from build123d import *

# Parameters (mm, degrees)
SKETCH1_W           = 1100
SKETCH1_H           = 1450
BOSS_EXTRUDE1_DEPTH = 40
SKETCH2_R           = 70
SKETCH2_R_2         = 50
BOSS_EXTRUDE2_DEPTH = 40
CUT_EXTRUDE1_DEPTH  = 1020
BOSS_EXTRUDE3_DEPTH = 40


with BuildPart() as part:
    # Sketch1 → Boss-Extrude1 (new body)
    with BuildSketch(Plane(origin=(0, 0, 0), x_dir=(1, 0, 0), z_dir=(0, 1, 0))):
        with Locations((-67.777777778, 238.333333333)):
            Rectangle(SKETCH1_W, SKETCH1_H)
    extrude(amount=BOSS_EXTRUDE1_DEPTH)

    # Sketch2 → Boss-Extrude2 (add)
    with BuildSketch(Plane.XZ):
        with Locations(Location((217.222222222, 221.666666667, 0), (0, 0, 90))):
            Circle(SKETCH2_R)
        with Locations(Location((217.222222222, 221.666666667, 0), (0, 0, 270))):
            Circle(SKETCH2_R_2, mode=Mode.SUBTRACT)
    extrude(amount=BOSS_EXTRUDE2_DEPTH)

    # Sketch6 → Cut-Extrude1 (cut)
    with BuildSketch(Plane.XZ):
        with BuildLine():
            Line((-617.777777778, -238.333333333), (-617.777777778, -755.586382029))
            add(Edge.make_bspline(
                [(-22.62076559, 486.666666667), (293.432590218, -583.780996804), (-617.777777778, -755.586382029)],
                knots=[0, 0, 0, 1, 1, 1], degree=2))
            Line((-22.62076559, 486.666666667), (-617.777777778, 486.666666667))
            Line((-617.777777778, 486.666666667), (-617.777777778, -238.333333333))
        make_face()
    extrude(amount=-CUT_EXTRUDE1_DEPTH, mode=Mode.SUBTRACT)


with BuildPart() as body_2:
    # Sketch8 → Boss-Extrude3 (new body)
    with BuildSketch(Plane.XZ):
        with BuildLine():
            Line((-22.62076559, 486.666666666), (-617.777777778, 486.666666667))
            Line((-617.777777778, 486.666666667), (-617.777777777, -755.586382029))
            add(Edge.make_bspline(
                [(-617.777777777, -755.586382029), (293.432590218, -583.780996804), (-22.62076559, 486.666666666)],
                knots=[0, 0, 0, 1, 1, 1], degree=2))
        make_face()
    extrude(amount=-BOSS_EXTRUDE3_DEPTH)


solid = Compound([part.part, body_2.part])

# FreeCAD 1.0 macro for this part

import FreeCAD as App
import Part
import Sketcher
from FreeCAD import Vector


def add_polygon(sketch, points):
    """Adds a closed chain of lines whose ends are joined by coincident constraints."""
    first, n = sketch.GeometryCount, len(points)
    for a, b in zip(points, points[1:] + points[:1]):
        sketch.addGeometry(Part.LineSegment(App.Vector(*a, 0), App.Vector(*b, 0)), False)
    for i in range(n):
        sketch.addConstraint(Sketcher.Constraint("Coincident", first + i, 2, first + (i + 1) % n, 1))

doc = App.newDocument("Part")
body = doc.addObject("PartDesign::Body", "Body")

# Sketch on XZ plane
sketch1 = body.newObject("Sketcher::SketchObject", "Sketch")
sketch1.AttachmentSupport = (doc.getObject("XZ_Plane"), [""])
sketch1.MapMode = "FlatFace"
add_polygon(sketch1, [(-618, -963), (-618, 487), (482, 487), (482, -963)])  # lines 0-3
sketch1.addConstraint([
    Sketcher.Constraint("Vertical", 0),
    Sketcher.Constraint("Horizontal", 1),
    Sketcher.Constraint("Vertical", 2),
    Sketcher.Constraint("Horizontal", 3),
    Sketcher.Constraint("DistanceX", 1, 1, 1, 2, 1100.0),
    Sketcher.Constraint("DistanceY", 0, 1, 0, 2, 1450.0),
    Sketcher.Constraint("DistanceX", 0, 2, -1, 1, 617.777778),
    Sketcher.Constraint("DistanceY", -1, 1, 0, 2, 486.666667),
])
pad1 = body.newObject("PartDesign::Pad", "Pad")
pad1.Profile = sketch1
pad1.Length = 40
pad1.Reversed = True

# Sketch on XZ plane
sketch2 = body.newObject("Sketcher::SketchObject", "Sketch001")
sketch2.AttachmentSupport = (doc.getObject("XZ_Plane"), [""])
sketch2.MapMode = "FlatFace"
sketch2.addGeometry([
    Part.Circle(Vector(217, 222, 0), Vector(0, 0, 1), 70),
    Part.Circle(Vector(217, 222, 0), Vector(0, 0, 1), 50),
], False)
sketch2.addConstraint([
    Sketcher.Constraint("Coincident", 1, 3, 0, 3),
    Sketcher.Constraint("Diameter", 0, 140.0),
    Sketcher.Constraint("Diameter", 1, 100.0),
    Sketcher.Constraint("DistanceX", -1, 1, 0, 3, 217.222222),
    Sketcher.Constraint("DistanceY", -1, 1, 0, 3, 221.666667),
])
pad2 = body.newObject("PartDesign::Pad", "Pad001")
pad2.Profile = sketch2
pad2.Length = 40

# Sketch on XZ plane
sketch3 = body.newObject("Sketcher::SketchObject", "Sketch002")
sketch3.AttachmentSupport = (doc.getObject("XZ_Plane"), [""])
sketch3.MapMode = "FlatFace"
sketch3.addGeometry([
    Part.BSplineCurve([Vector(-22.620766, 486.666667, 0), Vector(293.43259, -583.780997, 0), Vector(-617.777778, -755.586382, 0)], [3, 3], [0, 1], False, 2, [1, 1, 1], False),
    Part.LineSegment(Vector(-22.620766, 486.666667, 0), Vector(-617.777778, 486.666667, 0)),
    Part.LineSegment(Vector(-617.777778, 486.666667, 0), Vector(-617.777778, -755.586382, 0)),
], False)
sketch3.addConstraint([
    Sketcher.Constraint("Block", 0),
    Sketcher.Constraint("Coincident", 0, 1, 1, 1),
    Sketcher.Constraint("Coincident", 1, 2, 2, 1),
    Sketcher.Constraint("Coincident", 2, 2, 0, 2),
    Sketcher.Constraint("Horizontal", 1),
    Sketcher.Constraint("Vertical", 2),
])
pocket1 = body.newObject("PartDesign::Pocket", "Pocket")
pocket1.Profile = sketch3
pocket1.Length = 1020
body2 = doc.addObject("PartDesign::Body", "Body001")

# Sketch on XZ plane
sketch4 = body2.newObject("Sketcher::SketchObject", "Sketch003")
sketch4.AttachmentSupport = (doc.getObject("XZ_Plane001"), [""])
sketch4.MapMode = "FlatFace"
sketch4.addGeometry([
    Part.LineSegment(Vector(-22.620766, 486.666667, 0), Vector(-617.777778, 486.666667, 0)),
    Part.LineSegment(Vector(-617.777778, 486.666667, 0), Vector(-617.777778, -755.586382, 0)),
    Part.BSplineCurve([Vector(-617.777778, -755.586382, 0), Vector(293.43259, -583.780997, 0), Vector(-22.620766, 486.666667, 0)], [3, 3], [0, 1], False, 2, [1, 1, 1], False),
], False)
sketch4.addConstraint([
    Sketcher.Constraint("Block", 2),
    Sketcher.Constraint("Coincident", 0, 2, 1, 1),
    Sketcher.Constraint("Coincident", 1, 2, 2, 1),
    Sketcher.Constraint("Coincident", 2, 2, 0, 1),
    Sketcher.Constraint("Horizontal", 0),
    Sketcher.Constraint("Vertical", 1),
])
pad3 = body2.newObject("PartDesign::Pad", "Pad002")
pad3.Profile = sketch4
pad3.Length = 40
pad3.Reversed = True

doc.recompute()
